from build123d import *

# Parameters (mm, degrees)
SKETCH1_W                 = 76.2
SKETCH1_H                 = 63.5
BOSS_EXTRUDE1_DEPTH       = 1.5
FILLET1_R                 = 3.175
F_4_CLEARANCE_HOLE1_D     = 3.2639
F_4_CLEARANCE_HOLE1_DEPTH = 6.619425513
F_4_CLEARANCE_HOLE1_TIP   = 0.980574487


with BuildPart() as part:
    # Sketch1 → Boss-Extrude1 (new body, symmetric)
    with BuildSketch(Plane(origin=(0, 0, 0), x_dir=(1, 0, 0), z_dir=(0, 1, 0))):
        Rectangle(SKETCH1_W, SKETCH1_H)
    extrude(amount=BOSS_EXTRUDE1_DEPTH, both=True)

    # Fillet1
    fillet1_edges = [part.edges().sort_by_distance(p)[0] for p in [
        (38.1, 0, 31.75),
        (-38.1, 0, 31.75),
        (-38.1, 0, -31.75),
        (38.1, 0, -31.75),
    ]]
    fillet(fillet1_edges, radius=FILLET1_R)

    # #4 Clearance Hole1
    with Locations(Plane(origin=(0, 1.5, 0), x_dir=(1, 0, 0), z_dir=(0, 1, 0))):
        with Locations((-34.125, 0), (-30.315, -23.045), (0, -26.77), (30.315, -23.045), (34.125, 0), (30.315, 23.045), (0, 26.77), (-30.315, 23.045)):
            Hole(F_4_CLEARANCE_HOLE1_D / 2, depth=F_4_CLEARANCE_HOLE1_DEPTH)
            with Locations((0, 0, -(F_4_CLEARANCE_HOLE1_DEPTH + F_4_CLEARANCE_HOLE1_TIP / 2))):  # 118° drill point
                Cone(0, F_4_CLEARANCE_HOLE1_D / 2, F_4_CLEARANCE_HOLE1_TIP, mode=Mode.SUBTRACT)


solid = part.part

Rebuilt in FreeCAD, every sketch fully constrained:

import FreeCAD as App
import Part
import Sketcher
from FreeCAD import Vector
Q = App.Units.Quantity


def edges_at(feature, points):
    """Names of the edges that pass closest to the given points."""
    edges = feature.Shape.Edges
    near = lambda p: min(range(len(edges)), key=lambda i: edges[i].distToShape(Part.Vertex(*p))[0])
    return sorted({f"Edge{near(p) + 1}" for p in points})


def add_polygon(sketch, points):
    """Adds a closed chain of lines whose ends are joined by coincident constraints."""
    first, n = sketch.GeometryCount, len(points)
    for a, b in zip(points, points[1:] + points[:1]):
        sketch.addGeometry(Part.LineSegment(App.Vector(*a, 0), App.Vector(*b, 0)), False)
    for i in range(n):
        sketch.addConstraint(Sketcher.Constraint("Coincident", first + i, 2, first + (i + 1) % n, 1))

doc = App.newDocument("Part")
body = doc.addObject("PartDesign::Body", "Body")

sketch1 = body.newObject("Sketcher::SketchObject", "Sketch")
sketch1.AttachmentSupport = (doc.getObject("XZ_Plane"), [""])
sketch1.MapMode = "FlatFace"
add_polygon(sketch1, [(-38, -32), (-38, 32), (38, 32), (38, -32)])
sketch1.addConstraint([
    Sketcher.Constraint("Vertical", 0),
    Sketcher.Constraint("Horizontal", 1),
    Sketcher.Constraint("Vertical", 2),
    Sketcher.Constraint("Horizontal", 3),
    Sketcher.Constraint("Symmetric", 0, 2, 2, 2, -1, 1),
    Sketcher.Constraint("DistanceX", 1, 1, 1, 2, Q("3 in")),
    Sketcher.Constraint("DistanceY", 0, 1, 0, 2, Q("2.5 in")),
])
pad1 = body.newObject("PartDesign::Pad", "Pad")
pad1.Profile = sketch1
pad1.Length = 3
pad1.Midplane = True
doc.recompute()

fillet = body.newObject("PartDesign::Fillet", "Fillet")
fillet.Base = (pad1, edges_at(pad1, [
    (38.1, 0, 31.75),
    (-38.1, 0, 31.75),
    (-38.1, 0, -31.75),
    (38.1, 0, -31.75),
]))
fillet.Radius = Q("0.125 in")

sketch2 = body.newObject("Sketcher::SketchObject", "Sketch001")
sketch2.AttachmentSupport = (doc.getObject("XZ_Plane"), [""])
sketch2.MapMode = "FlatFace"
sketch2.AttachmentOffset = App.Placement(Vector(0, 0, -1.5), App.Rotation())
sketch2.addGeometry([
    Part.Circle(Vector(-34.1, 0, 0), Vector(0, 0, 1), 1.6),
    Part.Circle(Vector(-30.3, 23, 0), Vector(0, 0, 1), 1.6),
    Part.Circle(Vector(0, 26.8, 0), Vector(0, 0, 1), 1.6),
    Part.Circle(Vector(30.3, 23, 0), Vector(0, 0, 1), 1.6),
    Part.Circle(Vector(34.1, 0, 0), Vector(0, 0, 1), 1.6),
    Part.Circle(Vector(30.3, -23, 0), Vector(0, 0, 1), 1.6),
    Part.Circle(Vector(0, -26.8, 0), Vector(0, 0, 1), 1.6),
    Part.Circle(Vector(-30.3, -23, 0), Vector(0, 0, 1), 1.6),
], False)
sketch2.addConstraint([
    Sketcher.Constraint("Equal", 0, 1),
    Sketcher.Constraint("Equal", 1, 2),
    Sketcher.Constraint("Equal", 2, 3),
    Sketcher.Constraint("Equal", 3, 4),
    Sketcher.Constraint("Equal", 4, 5),
    Sketcher.Constraint("Equal", 5, 6),
    Sketcher.Constraint("Equal", 6, 7),
    Sketcher.Constraint("Symmetric", 0, 3, 4, 3, -1, 1),
    Sketcher.Constraint("Symmetric", 1, 3, 5, 3, -1, 1),
    Sketcher.Constraint("Symmetric", 2, 3, 6, 3, -1, 1),
    Sketcher.Constraint("Symmetric", 3, 3, 7, 3, -1, 1),
    Sketcher.Constraint("Symmetric", 1, 3, 3, 3, -2),
    Sketcher.Constraint("PointOnObject", 0, 3, -1),
    Sketcher.Constraint("PointOnObject", 2, 3, -2),
    Sketcher.Constraint("Diameter", 0, Q("0.1285 in")),
    Sketcher.Constraint("DistanceX", 0, 3, 1, 3, Q("0.15 in")),
    Sketcher.Constraint("DistanceX", 0, 3, -1, 1, 34.125),
    Sketcher.Constraint("DistanceY", -1, 1, 1, 3, 23.045),
    Sketcher.Constraint("DistanceY", -1, 1, 2, 3, 26.77),
])
doc.recompute()
hole = body.newObject("PartDesign::Hole", "Hole")
hole.Profile = sketch2
hole.ThreadType = "None"
hole.Diameter = Q("0.1285 in")
hole.DepthType = "Dimension"
hole.Depth = 6.619426
hole.DrillPoint = "Angled"
hole.DrillPointAngle = 118
hole.Reversed = True

doc.recompute()
